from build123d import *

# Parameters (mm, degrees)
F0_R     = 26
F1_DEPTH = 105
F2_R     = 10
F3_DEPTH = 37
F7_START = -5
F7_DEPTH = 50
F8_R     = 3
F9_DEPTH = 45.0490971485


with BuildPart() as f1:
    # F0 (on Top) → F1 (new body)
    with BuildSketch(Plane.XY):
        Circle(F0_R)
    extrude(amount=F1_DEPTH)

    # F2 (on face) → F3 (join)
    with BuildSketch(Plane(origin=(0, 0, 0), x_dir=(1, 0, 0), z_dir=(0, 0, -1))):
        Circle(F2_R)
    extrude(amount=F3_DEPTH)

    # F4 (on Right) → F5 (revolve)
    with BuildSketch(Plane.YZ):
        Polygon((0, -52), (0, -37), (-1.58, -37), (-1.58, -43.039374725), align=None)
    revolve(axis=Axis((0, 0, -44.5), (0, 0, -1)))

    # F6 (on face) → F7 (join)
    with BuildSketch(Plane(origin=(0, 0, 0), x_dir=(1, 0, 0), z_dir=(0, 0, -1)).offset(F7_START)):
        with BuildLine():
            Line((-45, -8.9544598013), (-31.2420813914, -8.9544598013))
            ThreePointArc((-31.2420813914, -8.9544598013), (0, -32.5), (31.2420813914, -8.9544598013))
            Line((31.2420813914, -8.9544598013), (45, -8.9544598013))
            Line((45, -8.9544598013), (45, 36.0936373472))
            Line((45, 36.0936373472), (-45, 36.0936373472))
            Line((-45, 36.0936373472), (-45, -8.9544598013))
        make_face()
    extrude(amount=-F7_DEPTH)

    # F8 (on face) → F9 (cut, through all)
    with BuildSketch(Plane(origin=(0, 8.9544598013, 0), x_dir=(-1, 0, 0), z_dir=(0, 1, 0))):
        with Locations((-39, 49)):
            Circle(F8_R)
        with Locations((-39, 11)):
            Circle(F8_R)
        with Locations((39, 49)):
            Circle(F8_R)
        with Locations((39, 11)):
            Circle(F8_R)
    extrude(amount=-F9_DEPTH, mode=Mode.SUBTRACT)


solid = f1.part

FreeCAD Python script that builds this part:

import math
import FreeCAD as App
import Part
import Sketcher
Q = App.Units.Quantity

doc = App.newDocument("Part")
body = doc.addObject("PartDesign::Body", "Body")

sketch1 = body.newObject("Sketcher::SketchObject", "Sketch")
sketch1.AttachmentSupport = (doc.getObject("XY_Plane"), [""])
sketch1.MapMode = "FlatFace"
sketch1.addGeometry(Part.Circle(App.Vector(0, 0, 0), App.Vector(0, 0, 1), 26), False)
sketch1.addConstraint(Sketcher.Constraint("Coincident", 0, 3, -1, 1))
sketch1.addConstraint(Sketcher.Constraint("Diameter", 0, Q("52 mm")))
pad1 = body.newObject("PartDesign::Pad", "Pad")
pad1.Profile = sketch1
pad1.Length = 105

sketch2 = body.newObject("Sketcher::SketchObject", "Sketch001")
sketch2.AttachmentSupport = (doc.getObject("XY_Plane"), [""])
sketch2.MapMode = "FlatFace"
sketch2.addGeometry(Part.Circle(App.Vector(0, 0, 0), App.Vector(0, 0, 1), 10), False)
sketch2.addConstraint(Sketcher.Constraint("Coincident", 0, 3, -1, 1))
sketch2.addConstraint(Sketcher.Constraint("Diameter", 0, Q("20 mm")))
pad2 = body.newObject("PartDesign::Pad", "Pad001")
pad2.Profile = sketch2
pad2.Length = 37
pad2.Reversed = True

sketch3 = body.newObject("Sketcher::SketchObject", "Sketch002")
sketch3.AttachmentSupport = (doc.getObject("YZ_Plane"), [""])
sketch3.MapMode = "FlatFace"
sketch3.addGeometry(Part.LineSegment(App.Vector(0, -52, 0), App.Vector(0, -37, 0)), False)
sketch3.addGeometry(Part.LineSegment(App.Vector(0, -37, 0), App.Vector(-1.6, -37, 0)), False)
sketch3.addGeometry(Part.LineSegment(App.Vector(-1.6, -37, 0), App.Vector(-1.6, -43, 0)), False)
sketch3.addGeometry(Part.LineSegment(App.Vector(-1.6, -43, 0), App.Vector(0, -52, 0)), False)
sketch3.addConstraint(Sketcher.Constraint("Coincident", 0, 2, 1, 1))
sketch3.addConstraint(Sketcher.Constraint("Coincident", 1, 2, 2, 1))
sketch3.addConstraint(Sketcher.Constraint("Coincident", 2, 2, 3, 1))
sketch3.addConstraint(Sketcher.Constraint("Coincident", 3, 2, 0, 1))
sketch3.addConstraint(Sketcher.Constraint("Vertical", 0))
sketch3.addConstraint(Sketcher.Constraint("Horizontal", 1))
sketch3.addConstraint(Sketcher.Constraint("Vertical", 2))
sketch3.addConstraint(Sketcher.Constraint("PointOnObject", 0, 2, -2))
sketch3.addConstraint(Sketcher.Constraint("DistanceY", 0, 1, 0, 2, Q("15 mm")))
sketch3.addConstraint(Sketcher.Constraint("Angle", 3, Q("-80 deg")))
sketch3.addConstraint(Sketcher.Constraint("DistanceY", 0, 2, -1, 1, Q("37 mm")))
sketch3.addConstraint(Sketcher.Constraint("DistanceX", 1, 2, 1, 1, Q("1.58 mm")))
revolution = body.newObject("PartDesign::Revolution", "Revolution")
revolution.Profile = sketch3
revolution.ReferenceAxis = (sketch3, ["V_Axis"])
revolution.Angle = 360

sketch4 = body.newObject("Sketcher::SketchObject", "Sketch003")
sketch4.AttachmentSupport = (doc.getObject("XY_Plane"), [""])
sketch4.MapMode = "FlatFace"
sketch4.AttachmentOffset = App.Placement(App.Vector(0, 0, 5), App.Rotation())
sketch4.addGeometry(Part.LineSegment(App.Vector(-45, 9, 0), App.Vector(-31, 9, 0)), False)
sketch4.addGeometry(Part.ArcOfCircle(Part.Circle(App.Vector(0, 0, 0), App.Vector(0, 0, 1), 32), math.radians(16), math.radians(164)), False)
sketch4.addGeometry(Part.LineSegment(App.Vector(31, 9, 0), App.Vector(45, 9, 0)), False)
sketch4.addGeometry(Part.LineSegment(App.Vector(45, 9, 0), App.Vector(45, -36, 0)), False)
sketch4.addGeometry(Part.LineSegment(App.Vector(45, -36, 0), App.Vector(-45, -36, 0)), False)
sketch4.addGeometry(Part.LineSegment(App.Vector(-45, -36, 0), App.Vector(-45, 9, 0)), False)
sketch4.addConstraint(Sketcher.Constraint("Coincident", 0, 2, 1, 2))
sketch4.addConstraint(Sketcher.Constraint("Coincident", 1, 1, 2, 1))
sketch4.addConstraint(Sketcher.Constraint("Coincident", 2, 2, 3, 1))
sketch4.addConstraint(Sketcher.Constraint("Coincident", 3, 2, 4, 1))
sketch4.addConstraint(Sketcher.Constraint("Coincident", 4, 2, 5, 1))
sketch4.addConstraint(Sketcher.Constraint("Coincident", 5, 2, 0, 1))
sketch4.addConstraint(Sketcher.Constraint("Horizontal", 0))
sketch4.addConstraint(Sketcher.Constraint("Horizontal", 2))
sketch4.addConstraint(Sketcher.Constraint("Vertical", 3))
sketch4.addConstraint(Sketcher.Constraint("Horizontal", 4))
sketch4.addConstraint(Sketcher.Constraint("Vertical", 5))
sketch4.addConstraint(Sketcher.Constraint("Coincident", 1, 3, -1, 1))
sketch4.addConstraint(Sketcher.Constraint("Symmetric", 2, 2, 5, 2, -2))
sketch4.addConstraint(Sketcher.Constraint("Radius", 1, Q("32.5 mm")))
sketch4.addConstraint(Sketcher.Constraint("DistanceX", 4, 2, 4, 1, Q("90 mm")))
sketch4.addConstraint(Sketcher.Constraint("DistanceX", 0, 1, 0, 2, Q("13.757919 mm")))
sketch4.addConstraint(Sketcher.Constraint("DistanceY", 3, 2, 3, 1, Q("45.048097 mm")))
pad3 = body.newObject("PartDesign::Pad", "Pad002")
pad3.Profile = sketch4
pad3.Length = 50

sketch5 = body.newObject("Sketcher::SketchObject", "Sketch004")
sketch5.AttachmentSupport = (doc.getObject("XZ_Plane"), [""])
sketch5.MapMode = "FlatFace"
sketch5.AttachmentOffset = App.Placement(App.Vector(0, 0, -8.95446), App.Rotation())
sketch5.addGeometry(Part.Circle(App.Vector(39, 49, 0), App.Vector(0, 0, 1), 3), False)
sketch5.addGeometry(Part.Circle(App.Vector(39, 11, 0), App.Vector(0, 0, 1), 3), False)
sketch5.addGeometry(Part.Circle(App.Vector(-39, 49, 0), App.Vector(0, 0, 1), 3), False)
sketch5.addGeometry(Part.Circle(App.Vector(-39, 11, 0), App.Vector(0, 0, 1), 3), False)
sketch5.addConstraint(Sketcher.Constraint("Equal", 0, 1))
sketch5.addConstraint(Sketcher.Constraint("Equal", 1, 2))
sketch5.addConstraint(Sketcher.Constraint("Equal", 2, 3))
sketch5.addConstraint(Sketcher.Constraint("Symmetric", 0, 3, 2, 3, -2))
sketch5.addConstraint(Sketcher.Constraint("Symmetric", 1, 3, 3, 3, -2))
sketch5.addConstraint(Sketcher.Constraint("Vertical", 0, 3, 1, 3))
sketch5.addConstraint(Sketcher.Constraint("Diameter", 0, Q("6 mm")))
sketch5.addConstraint(Sketcher.Constraint("DistanceX", -1, 1, 0, 3, Q("39 mm")))
sketch5.addConstraint(Sketcher.Constraint("DistanceY", -1, 1, 0, 3, Q("49 mm")))
sketch5.addConstraint(Sketcher.Constraint("DistanceY", -1, 1, 1, 3, Q("11 mm")))
pocket1 = body.newObject("PartDesign::Pocket", "Pocket")
pocket1.Profile = sketch5
pocket1.Type = "ThroughAll"
pocket1.Reversed = True

doc.recompute()
